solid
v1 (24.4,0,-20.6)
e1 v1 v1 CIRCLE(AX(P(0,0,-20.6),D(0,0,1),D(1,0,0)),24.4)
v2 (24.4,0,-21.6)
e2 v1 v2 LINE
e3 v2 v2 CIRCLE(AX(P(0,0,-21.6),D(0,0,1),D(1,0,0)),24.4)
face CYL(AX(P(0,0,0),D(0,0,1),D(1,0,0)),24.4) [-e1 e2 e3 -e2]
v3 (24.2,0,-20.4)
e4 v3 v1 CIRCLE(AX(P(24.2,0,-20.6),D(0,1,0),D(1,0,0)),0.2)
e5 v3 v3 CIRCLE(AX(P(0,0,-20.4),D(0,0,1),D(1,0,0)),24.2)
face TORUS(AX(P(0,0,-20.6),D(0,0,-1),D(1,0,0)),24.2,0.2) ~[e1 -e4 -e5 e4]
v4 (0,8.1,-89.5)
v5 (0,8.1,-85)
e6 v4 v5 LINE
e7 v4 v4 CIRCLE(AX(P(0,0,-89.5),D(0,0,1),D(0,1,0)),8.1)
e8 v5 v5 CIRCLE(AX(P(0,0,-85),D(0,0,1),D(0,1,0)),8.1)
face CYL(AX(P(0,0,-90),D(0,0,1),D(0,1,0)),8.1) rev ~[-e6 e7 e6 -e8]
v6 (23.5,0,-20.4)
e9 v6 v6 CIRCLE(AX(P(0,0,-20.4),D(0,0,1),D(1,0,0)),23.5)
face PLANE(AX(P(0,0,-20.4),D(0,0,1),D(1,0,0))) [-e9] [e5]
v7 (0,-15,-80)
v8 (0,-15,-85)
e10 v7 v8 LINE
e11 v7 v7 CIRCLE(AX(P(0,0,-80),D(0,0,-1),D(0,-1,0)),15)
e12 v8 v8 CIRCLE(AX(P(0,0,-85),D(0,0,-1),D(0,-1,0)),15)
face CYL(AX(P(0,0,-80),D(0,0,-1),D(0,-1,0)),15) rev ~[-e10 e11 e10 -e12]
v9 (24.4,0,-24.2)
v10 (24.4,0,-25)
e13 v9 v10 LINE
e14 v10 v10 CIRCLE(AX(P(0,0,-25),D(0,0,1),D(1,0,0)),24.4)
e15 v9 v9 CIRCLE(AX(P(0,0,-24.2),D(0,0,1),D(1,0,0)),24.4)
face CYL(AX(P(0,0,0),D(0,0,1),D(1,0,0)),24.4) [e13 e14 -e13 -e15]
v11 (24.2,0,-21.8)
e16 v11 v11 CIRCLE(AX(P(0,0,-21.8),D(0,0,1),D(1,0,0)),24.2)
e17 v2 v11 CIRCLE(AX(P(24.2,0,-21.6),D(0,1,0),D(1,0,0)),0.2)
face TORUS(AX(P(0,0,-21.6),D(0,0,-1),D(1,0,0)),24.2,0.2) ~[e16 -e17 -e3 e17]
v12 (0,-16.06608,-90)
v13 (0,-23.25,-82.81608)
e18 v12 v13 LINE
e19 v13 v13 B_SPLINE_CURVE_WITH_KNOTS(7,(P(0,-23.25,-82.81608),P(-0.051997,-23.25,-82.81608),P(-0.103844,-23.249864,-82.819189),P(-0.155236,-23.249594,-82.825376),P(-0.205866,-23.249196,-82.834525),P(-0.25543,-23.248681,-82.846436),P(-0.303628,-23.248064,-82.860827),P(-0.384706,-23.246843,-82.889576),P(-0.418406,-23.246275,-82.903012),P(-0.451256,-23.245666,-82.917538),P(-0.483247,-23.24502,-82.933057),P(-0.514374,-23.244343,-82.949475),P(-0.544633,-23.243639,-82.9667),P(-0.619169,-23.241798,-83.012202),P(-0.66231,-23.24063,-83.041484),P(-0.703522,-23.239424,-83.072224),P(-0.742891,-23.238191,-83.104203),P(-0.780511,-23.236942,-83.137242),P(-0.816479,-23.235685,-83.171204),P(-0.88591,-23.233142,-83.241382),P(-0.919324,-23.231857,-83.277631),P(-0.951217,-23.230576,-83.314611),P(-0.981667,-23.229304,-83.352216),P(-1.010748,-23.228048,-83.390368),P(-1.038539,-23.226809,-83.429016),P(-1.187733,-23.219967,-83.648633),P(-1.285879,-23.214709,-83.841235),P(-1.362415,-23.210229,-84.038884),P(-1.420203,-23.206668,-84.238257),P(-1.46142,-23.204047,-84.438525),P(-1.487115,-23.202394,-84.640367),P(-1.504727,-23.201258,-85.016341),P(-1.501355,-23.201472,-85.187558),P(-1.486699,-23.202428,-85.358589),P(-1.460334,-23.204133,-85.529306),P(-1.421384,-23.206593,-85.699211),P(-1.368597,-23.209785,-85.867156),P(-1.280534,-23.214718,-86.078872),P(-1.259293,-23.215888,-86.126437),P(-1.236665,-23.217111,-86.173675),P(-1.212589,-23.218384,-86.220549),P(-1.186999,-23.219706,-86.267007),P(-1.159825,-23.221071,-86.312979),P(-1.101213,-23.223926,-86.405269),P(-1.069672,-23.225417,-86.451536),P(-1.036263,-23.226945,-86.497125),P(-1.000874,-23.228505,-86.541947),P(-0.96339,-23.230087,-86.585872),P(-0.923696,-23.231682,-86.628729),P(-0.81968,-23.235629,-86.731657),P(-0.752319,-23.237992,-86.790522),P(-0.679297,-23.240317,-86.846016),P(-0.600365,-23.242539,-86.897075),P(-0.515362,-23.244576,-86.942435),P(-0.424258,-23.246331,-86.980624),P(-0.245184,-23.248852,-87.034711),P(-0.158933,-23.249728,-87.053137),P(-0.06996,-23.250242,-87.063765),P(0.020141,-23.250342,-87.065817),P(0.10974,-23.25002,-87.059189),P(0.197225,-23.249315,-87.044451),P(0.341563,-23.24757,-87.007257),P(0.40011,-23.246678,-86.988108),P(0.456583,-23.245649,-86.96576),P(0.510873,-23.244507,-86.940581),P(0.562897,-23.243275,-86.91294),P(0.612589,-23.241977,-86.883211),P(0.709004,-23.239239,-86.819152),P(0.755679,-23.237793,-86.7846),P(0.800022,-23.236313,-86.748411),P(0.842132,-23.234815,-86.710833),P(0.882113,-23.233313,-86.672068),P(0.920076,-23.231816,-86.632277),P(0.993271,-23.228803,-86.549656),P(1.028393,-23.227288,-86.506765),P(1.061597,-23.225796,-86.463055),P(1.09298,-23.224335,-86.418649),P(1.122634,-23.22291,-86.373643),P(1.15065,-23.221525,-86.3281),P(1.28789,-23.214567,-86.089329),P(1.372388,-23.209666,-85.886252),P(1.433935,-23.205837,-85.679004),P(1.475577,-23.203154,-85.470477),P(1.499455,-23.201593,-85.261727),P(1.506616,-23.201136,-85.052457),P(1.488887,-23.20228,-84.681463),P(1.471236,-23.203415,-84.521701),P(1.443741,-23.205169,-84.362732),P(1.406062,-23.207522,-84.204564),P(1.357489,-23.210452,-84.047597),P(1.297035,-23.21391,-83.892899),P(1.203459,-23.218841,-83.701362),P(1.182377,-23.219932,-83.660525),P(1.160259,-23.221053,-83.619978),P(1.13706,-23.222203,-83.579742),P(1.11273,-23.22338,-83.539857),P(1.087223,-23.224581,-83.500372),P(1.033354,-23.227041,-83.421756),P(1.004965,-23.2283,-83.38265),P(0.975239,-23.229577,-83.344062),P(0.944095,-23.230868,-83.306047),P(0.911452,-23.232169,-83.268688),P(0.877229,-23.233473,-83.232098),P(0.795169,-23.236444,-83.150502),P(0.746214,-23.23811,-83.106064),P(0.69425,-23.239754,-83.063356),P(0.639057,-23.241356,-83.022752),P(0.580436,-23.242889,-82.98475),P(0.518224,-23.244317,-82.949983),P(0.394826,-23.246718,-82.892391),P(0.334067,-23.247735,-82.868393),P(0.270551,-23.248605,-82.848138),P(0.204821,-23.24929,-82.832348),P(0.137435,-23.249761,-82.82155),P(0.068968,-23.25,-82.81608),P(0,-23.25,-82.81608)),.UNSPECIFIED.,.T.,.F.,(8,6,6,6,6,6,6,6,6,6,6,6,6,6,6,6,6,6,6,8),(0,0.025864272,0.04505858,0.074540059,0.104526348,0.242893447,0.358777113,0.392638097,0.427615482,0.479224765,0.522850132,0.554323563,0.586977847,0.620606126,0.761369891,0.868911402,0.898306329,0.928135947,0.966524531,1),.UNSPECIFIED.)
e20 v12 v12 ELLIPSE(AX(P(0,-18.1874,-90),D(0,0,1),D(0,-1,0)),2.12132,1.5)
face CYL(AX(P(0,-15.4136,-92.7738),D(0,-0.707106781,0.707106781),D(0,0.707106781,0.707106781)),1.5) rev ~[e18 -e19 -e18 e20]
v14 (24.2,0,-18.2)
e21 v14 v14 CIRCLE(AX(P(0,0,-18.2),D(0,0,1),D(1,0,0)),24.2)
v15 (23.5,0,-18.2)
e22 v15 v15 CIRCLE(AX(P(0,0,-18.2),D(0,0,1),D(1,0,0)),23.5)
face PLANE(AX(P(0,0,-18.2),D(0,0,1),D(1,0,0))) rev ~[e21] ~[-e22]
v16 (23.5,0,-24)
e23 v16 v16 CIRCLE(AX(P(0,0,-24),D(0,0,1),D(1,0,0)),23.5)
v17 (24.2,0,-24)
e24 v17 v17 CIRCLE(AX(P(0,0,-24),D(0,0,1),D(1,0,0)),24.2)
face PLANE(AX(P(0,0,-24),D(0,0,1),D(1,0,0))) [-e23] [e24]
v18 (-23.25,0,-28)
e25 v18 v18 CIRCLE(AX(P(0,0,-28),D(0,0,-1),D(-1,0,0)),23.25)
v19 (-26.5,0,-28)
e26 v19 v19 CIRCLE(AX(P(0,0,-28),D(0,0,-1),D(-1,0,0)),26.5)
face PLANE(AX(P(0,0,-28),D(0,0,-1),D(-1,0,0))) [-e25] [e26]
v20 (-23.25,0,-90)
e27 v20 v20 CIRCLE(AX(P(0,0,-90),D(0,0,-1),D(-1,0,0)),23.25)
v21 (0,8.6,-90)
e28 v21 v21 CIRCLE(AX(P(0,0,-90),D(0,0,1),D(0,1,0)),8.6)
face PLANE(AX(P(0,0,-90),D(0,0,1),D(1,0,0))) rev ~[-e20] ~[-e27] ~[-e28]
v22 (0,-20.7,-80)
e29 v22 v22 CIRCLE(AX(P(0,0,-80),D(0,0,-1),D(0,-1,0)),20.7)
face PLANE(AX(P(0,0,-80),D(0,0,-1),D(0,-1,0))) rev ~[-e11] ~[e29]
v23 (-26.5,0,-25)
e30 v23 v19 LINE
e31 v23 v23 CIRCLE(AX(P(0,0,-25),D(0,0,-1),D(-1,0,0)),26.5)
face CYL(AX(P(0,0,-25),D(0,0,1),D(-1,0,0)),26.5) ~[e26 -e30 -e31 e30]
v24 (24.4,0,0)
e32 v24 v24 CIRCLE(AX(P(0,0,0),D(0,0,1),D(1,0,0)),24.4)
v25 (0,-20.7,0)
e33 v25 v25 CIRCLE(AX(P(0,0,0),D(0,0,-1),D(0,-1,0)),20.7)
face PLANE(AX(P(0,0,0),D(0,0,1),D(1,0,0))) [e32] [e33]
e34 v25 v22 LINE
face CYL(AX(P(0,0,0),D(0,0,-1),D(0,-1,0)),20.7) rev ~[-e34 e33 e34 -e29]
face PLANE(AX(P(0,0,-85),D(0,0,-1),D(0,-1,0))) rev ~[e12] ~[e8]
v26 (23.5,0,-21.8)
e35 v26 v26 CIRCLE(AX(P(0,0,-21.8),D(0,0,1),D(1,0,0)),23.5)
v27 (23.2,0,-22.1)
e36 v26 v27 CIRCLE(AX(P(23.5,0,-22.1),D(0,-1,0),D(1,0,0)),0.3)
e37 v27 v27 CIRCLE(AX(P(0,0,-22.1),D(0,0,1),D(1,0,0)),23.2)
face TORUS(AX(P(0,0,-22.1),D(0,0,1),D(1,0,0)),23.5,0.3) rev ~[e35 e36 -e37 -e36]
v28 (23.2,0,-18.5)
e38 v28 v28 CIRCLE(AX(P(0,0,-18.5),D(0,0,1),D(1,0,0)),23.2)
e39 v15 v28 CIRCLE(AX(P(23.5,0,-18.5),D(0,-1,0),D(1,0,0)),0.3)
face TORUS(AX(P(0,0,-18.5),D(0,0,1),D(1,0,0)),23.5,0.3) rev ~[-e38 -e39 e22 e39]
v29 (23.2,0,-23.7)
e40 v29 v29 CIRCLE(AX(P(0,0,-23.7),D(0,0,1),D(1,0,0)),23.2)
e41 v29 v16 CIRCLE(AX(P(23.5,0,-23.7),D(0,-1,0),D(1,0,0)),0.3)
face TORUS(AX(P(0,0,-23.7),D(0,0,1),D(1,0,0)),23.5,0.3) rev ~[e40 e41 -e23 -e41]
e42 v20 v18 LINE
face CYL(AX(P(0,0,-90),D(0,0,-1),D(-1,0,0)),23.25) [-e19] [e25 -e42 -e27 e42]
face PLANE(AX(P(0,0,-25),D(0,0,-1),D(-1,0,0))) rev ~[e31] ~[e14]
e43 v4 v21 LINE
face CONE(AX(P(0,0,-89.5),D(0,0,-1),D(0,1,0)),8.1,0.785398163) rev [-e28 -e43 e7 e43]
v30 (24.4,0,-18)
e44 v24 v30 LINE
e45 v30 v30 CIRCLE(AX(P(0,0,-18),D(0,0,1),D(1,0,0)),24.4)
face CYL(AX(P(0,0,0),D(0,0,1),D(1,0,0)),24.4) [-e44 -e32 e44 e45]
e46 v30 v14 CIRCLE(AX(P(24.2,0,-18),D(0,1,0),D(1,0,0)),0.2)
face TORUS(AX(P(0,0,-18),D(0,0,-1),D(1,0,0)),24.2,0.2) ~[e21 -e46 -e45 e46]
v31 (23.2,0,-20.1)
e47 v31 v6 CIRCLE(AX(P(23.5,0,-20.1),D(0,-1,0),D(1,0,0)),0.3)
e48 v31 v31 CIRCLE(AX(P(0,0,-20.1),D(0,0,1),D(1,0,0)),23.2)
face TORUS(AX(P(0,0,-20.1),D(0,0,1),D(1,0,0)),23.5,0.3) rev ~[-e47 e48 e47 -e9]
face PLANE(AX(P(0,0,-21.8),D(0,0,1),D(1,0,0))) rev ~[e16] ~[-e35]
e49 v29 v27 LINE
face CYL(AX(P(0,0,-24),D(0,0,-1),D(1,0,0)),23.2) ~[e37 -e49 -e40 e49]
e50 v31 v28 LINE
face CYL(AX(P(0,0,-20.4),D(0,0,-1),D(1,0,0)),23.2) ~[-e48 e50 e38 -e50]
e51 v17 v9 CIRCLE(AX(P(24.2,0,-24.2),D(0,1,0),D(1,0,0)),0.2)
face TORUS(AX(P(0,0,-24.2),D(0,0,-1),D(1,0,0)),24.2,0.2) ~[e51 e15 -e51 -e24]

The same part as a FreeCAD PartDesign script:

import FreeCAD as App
import Part
import Sketcher

V = App.Vector


def edges_at(feature, points):
    """Names of the edges that pass closest to the given points."""
    edges = feature.Shape.Edges
    near = lambda p: min(range(len(edges)), key=lambda i: edges[i].distToShape(Part.Vertex(*p))[0])
    return sorted({f"Edge{near(p) + 1}" for p in points})

doc = App.newDocument("Part")
params = doc.addObject("Spreadsheet::Sheet", "Params")
for row, (alias, value) in enumerate([
    ("sketch1_diameter", "48.8 mm"),
    ("pad1_length", "90 mm"),
    ("sketch2_diameter", "53 mm"),
    ("pad2_length", "3 mm"),
    ("sketch3_diameter", "46.4 mm"),
    ("sketch3_diameter2", "48.8 mm"),
    ("pocket1_length", "2.2 mm"),
    ("sketch4_diameter", "46.4 mm"),
    ("sketch4_diameter2", "48.8 mm"),
    ("pocket2_length", "2.2 mm"),
    ("fillet_radius", "0.2 mm"),
    ("fillet2_radius", "0.3 mm"),
    ("sketch5_diameter", "41.4 mm"),
    ("hole_diameter", "41.4 mm"),
    ("hole_depth", "80 mm"),
    ("sketch6_diameter", "16.2 mm"),
    ("hole2_diameter", "16.2 mm"),
    ("hole2_depth", "10 mm"),
    ("chamfer_size", "0.5 mm"),
    ("sketch7_diameter", "30 mm"),
    ("hole3_diameter", "30 mm"),
    ("hole3_depth", "5 mm"),
    ("sketch8_diameter", "3 mm"),
    ("hole4_diameter", "3 mm"),
    ("sketch9_diameter", "46.5 mm"),
    ("sketch9_diameter2", "48.8 mm"),
    ("pocket3_length", "62 mm"),
], start=1):
    params.set(f"A{row}", alias)
    params.set(f"B{row}", "=" + value)
    params.setAlias(f"B{row}", alias)

body = doc.addObject("PartDesign::Body", "Body")

sketch1 = body.newObject("Sketcher::SketchObject", "Sketch")
sketch1.AttachmentSupport = (doc.getObject("XY_Plane"), [""])
sketch1.MapMode = "FlatFace"
sketch1.addGeometry(Part.Circle(V(0, 0, 0), V(0, 0, 1), 24.4), False)
sketch1.addConstraint([
    Sketcher.Constraint("Coincident", 0, 3, -1, 1),
    Sketcher.Constraint("Diameter", 0, 48.8),
])
sketch1.setExpression("Constraints[1]", "Params.sketch1_diameter")
pad1 = body.newObject("PartDesign::Pad", "Pad")
pad1.Profile = sketch1
pad1.setExpression("Length", "Params.pad1_length")
pad1.Reversed = True

sketch2 = body.newObject("Sketcher::SketchObject", "Sketch001")
sketch2.AttachmentSupport = (doc.getObject("XY_Plane"), [""])
sketch2.MapMode = "FlatFace"
sketch2.AttachmentOffset = App.Placement(V(0, 0, -25), App.Rotation())
sketch2.addGeometry(Part.Circle(V(0, 0, 0), V(0, 0, 1), 26.5), False)
sketch2.addConstraint([
    Sketcher.Constraint("Coincident", 0, 3, -1, 1),
    Sketcher.Constraint("Diameter", 0, 53.0),
])
sketch2.setExpression("Constraints[1]", "Params.sketch2_diameter")
pad2 = body.newObject("PartDesign::Pad", "Pad001")
pad2.Profile = sketch2
pad2.setExpression("Length", "Params.pad2_length")
pad2.Reversed = True

sketch3 = body.newObject("Sketcher::SketchObject", "Sketch002")
sketch3.AttachmentSupport = (doc.getObject("XY_Plane"), [""])
sketch3.MapMode = "FlatFace"
sketch3.AttachmentOffset = App.Placement(V(0, 0, -24), App.Rotation())
sketch3.addGeometry([
    Part.Circle(V(0, 0, 0), V(0, 0, 1), 24.4),
    Part.Circle(V(0, 0, 0), V(0, 0, 1), 23.2),
], False)
sketch3.addConstraint([
    Sketcher.Constraint("Coincident", 0, 3, -1, 1),
    Sketcher.Constraint("Coincident", 1, 3, -1, 1),
    Sketcher.Constraint("Diameter", 1, 46.4),
    Sketcher.Constraint("Diameter", 0, 48.8),
])
sketch3.setExpression("Constraints[2]", "Params.sketch3_diameter")
sketch3.setExpression("Constraints[3]", "Params.sketch3_diameter2")
pocket1 = body.newObject("PartDesign::Pocket", "Pocket")
pocket1.Profile = sketch3
pocket1.setExpression("Length", "Params.pocket1_length")
pocket1.Reversed = True

sketch4 = body.newObject("Sketcher::SketchObject", "Sketch003")
sketch4.AttachmentSupport = (doc.getObject("XY_Plane"), [""])
sketch4.MapMode = "FlatFace"
sketch4.AttachmentOffset = App.Placement(V(0, 0, -20.4), App.Rotation())
sketch4.addGeometry([
    Part.Circle(V(0, 0, 0), V(0, 0, 1), 24.4),
    Part.Circle(V(0, 0, 0), V(0, 0, 1), 23.2),
], False)
sketch4.addConstraint([
    Sketcher.Constraint("Coincident", 0, 3, -1, 1),
    Sketcher.Constraint("Coincident", 1, 3, -1, 1),
    Sketcher.Constraint("Diameter", 1, 46.4),
    Sketcher.Constraint("Diameter", 0, 48.8),
])
sketch4.setExpression("Constraints[2]", "Params.sketch4_diameter")
sketch4.setExpression("Constraints[3]", "Params.sketch4_diameter2")
pocket2 = body.newObject("PartDesign::Pocket", "Pocket001")
pocket2.Profile = sketch4
pocket2.setExpression("Length", "Params.pocket2_length")
pocket2.Reversed = True
doc.recompute()

fillet = body.newObject("PartDesign::Fillet", "Fillet")
fillet.Base = (pocket2, edges_at(pocket2, [
    (-24.4, 0, -24),
    (-24.4, 0, -21.8),
    (-24.4, 0, -20.4),
    (-24.4, 0, -18.2),
]))
fillet.setExpression("Radius", "Params.fillet_radius")
doc.recompute()

fillet2 = body.newObject("PartDesign::Fillet", "Fillet001")
fillet2.Base = (fillet, edges_at(fillet, [
    (-23.2, 0, -24),
    (-23.2, 0, -20.4),
    (-23.2, 0, -18.2),
    (-23.2, 0, -21.8),
]))
fillet2.setExpression("Radius", "Params.fillet2_radius")

sketch5 = body.newObject("Sketcher::SketchObject", "Sketch004")
sketch5.AttachmentSupport = (doc.getObject("XY_Plane"), [""])
sketch5.MapMode = "FlatFace"
sketch5.addGeometry(Part.Circle(V(0, 0, 0), V(0, 0, 1), 20.7), False)
sketch5.addConstraint([
    Sketcher.Constraint("Coincident", 0, 3, -1, 1),
    Sketcher.Constraint("Diameter", 0, 41.4),
])
sketch5.setExpression("Constraints[1]", "Params.sketch5_diameter")
doc.recompute()
hole = body.newObject("PartDesign::Hole", "Hole")
hole.Profile = sketch5
hole.ThreadType = "None"
hole.setExpression("Diameter", "Params.hole_diameter")
hole.DepthType = "Dimension"
hole.setExpression("Depth", "Params.hole_depth")
hole.DrillPoint = "Flat"

sketch6 = body.newObject("Sketcher::SketchObject", "Sketch005")
sketch6.AttachmentSupport = (doc.getObject("XY_Plane"), [""])
sketch6.MapMode = "FlatFace"
sketch6.AttachmentOffset = App.Placement(V(0, 0, -90), App.Rotation())
sketch6.addGeometry(Part.Circle(V(0, 0, 0), V(0, 0, 1), 8.1), False)
sketch6.addConstraint([
    Sketcher.Constraint("Coincident", 0, 3, -1, 1),
    Sketcher.Constraint("Diameter", 0, 16.2),
])
sketch6.setExpression("Constraints[1]", "Params.sketch6_diameter")
doc.recompute()
hole2 = body.newObject("PartDesign::Hole", "Hole001")
hole2.Profile = sketch6
hole2.ThreadType = "None"
hole2.setExpression("Diameter", "Params.hole2_diameter")
hole2.DepthType = "Dimension"
hole2.setExpression("Depth", "Params.hole2_depth")
hole2.DrillPoint = "Flat"
hole2.Reversed = True
doc.recompute()

chamfer = body.newObject("PartDesign::Chamfer", "Chamfer")
chamfer.Base = (hole2, edges_at(hole2, [(0, -8.1, -90)]))
chamfer.setExpression("Size", "Params.chamfer_size")

sketch7 = body.newObject("Sketcher::SketchObject", "Sketch006")
sketch7.AttachmentSupport = (doc.getObject("XY_Plane"), [""])
sketch7.MapMode = "FlatFace"
sketch7.AttachmentOffset = App.Placement(V(0, 0, -80), App.Rotation())
sketch7.addGeometry(Part.Circle(V(0, 0, 0), V(0, 0, 1), 15), False)
sketch7.addConstraint([
    Sketcher.Constraint("Coincident", 0, 3, -1, 1),
    Sketcher.Constraint("Diameter", 0, 30.0),
])
sketch7.setExpression("Constraints[1]", "Params.sketch7_diameter")
doc.recompute()
hole3 = body.newObject("PartDesign::Hole", "Hole002")
hole3.Profile = sketch7
hole3.ThreadType = "None"
hole3.setExpression("Diameter", "Params.hole3_diameter")
hole3.DepthType = "Dimension"
hole3.setExpression("Depth", "Params.hole3_depth")
hole3.DrillPoint = "Flat"

sketch8 = body.newObject("Sketcher::SketchObject", "Sketch007")
sketch8.Placement = App.Placement(V(0, 38.6801, -38.6801), App.Rotation(V(0, 0.707106781, 0.707106781), V(0.999999999, 0, 0), V(0, 0.707106781, -0.707106781), "ZXY"))
sketch8.addGeometry(Part.Circle(V(-76.500044, 0, 0), V(0, 0, 1), 1.5), False)
sketch8.addConstraint([
    Sketcher.Constraint("PointOnObject", 0, 3, -1),
    Sketcher.Constraint("Diameter", 0, 3.0),
    Sketcher.Constraint("DistanceX", 0, 3, -1, 1, 76.5),
])
sketch8.setExpression("Constraints[1]", "Params.sketch8_diameter")
doc.recompute()
hole4 = body.newObject("PartDesign::Hole", "Hole003")
hole4.Profile = sketch8
hole4.ThreadType = "None"
hole4.setExpression("Diameter", "Params.hole4_diameter")
hole4.DepthType = "ThroughAll"

sketch9 = body.newObject("Sketcher::SketchObject", "Sketch008")
sketch9.AttachmentSupport = (doc.getObject("XY_Plane"), [""])
sketch9.MapMode = "FlatFace"
sketch9.AttachmentOffset = App.Placement(V(0, 0, -90), App.Rotation())
sketch9.addGeometry([
    Part.Circle(V(0, 0, 0), V(0, 0, 1), 24.4),
    Part.Circle(V(0, 0, 0), V(0, 0, 1), 23.25),
], False)
sketch9.addConstraint([
    Sketcher.Constraint("Coincident", 0, 3, -1, 1),
    Sketcher.Constraint("Coincident", 1, 3, -1, 1),
    Sketcher.Constraint("Diameter", 1, 46.5),
    Sketcher.Constraint("Diameter", 0, 48.8),
])
sketch9.setExpression("Constraints[2]", "Params.sketch9_diameter")
sketch9.setExpression("Constraints[3]", "Params.sketch9_diameter2")
pocket3 = body.newObject("PartDesign::Pocket", "Pocket002")
pocket3.Profile = sketch9
pocket3.setExpression("Length", "Params.pocket3_length")
pocket3.Reversed = True

doc.recompute()
